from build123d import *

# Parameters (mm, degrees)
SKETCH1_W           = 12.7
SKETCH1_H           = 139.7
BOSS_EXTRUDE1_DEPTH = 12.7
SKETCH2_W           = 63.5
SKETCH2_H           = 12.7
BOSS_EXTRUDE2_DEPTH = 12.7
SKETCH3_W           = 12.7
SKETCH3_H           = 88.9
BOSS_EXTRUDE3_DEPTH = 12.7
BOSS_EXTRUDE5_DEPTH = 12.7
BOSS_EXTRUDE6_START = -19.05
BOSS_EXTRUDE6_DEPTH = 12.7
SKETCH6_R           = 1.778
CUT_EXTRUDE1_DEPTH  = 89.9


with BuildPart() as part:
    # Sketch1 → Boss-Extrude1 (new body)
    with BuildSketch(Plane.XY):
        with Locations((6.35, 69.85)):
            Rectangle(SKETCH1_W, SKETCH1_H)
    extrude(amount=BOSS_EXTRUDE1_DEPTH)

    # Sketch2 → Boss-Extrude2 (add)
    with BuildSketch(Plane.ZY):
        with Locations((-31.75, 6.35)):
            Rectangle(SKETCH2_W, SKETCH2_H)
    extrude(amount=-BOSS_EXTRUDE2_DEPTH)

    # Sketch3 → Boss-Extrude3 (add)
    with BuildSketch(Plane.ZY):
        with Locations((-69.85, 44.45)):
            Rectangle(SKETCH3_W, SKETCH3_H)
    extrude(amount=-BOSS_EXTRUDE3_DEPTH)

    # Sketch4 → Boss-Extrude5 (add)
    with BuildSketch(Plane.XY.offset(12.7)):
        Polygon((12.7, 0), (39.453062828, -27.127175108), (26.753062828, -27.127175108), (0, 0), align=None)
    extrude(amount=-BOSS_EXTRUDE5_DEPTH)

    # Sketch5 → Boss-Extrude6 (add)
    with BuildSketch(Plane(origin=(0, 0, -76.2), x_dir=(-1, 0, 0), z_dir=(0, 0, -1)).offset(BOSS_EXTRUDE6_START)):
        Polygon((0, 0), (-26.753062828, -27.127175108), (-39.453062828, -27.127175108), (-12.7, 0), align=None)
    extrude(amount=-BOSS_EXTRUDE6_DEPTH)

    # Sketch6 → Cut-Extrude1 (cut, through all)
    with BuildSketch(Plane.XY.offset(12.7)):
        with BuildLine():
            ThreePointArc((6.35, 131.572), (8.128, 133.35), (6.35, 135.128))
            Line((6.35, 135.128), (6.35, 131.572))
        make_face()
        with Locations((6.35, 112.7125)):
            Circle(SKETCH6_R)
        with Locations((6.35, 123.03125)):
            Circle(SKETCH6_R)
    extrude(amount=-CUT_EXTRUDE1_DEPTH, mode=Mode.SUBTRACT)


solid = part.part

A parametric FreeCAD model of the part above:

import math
import FreeCAD as App
import Part
import Sketcher
from FreeCAD import Vector
Q = App.Units.Quantity

doc = App.newDocument("Part")
body = doc.addObject("PartDesign::Body", "Body")

# Sketch on XY plane
sketch1 = body.newObject("Sketcher::SketchObject", "Sketch")
sketch1.AttachmentSupport = (doc.getObject("XY_Plane"), [""])
sketch1.MapMode = "FlatFace"
sketch1.addGeometry([
    Part.LineSegment(Vector(0, 139.7, 0), Vector(0, 0, 0)),
    Part.LineSegment(Vector(0, 0, 0), Vector(12.7, 0, 0)),
    Part.LineSegment(Vector(12.7, 0, 0), Vector(12.7, 139.7, 0)),
    Part.LineSegment(Vector(12.7, 139.7, 0), Vector(0, 139.7, 0)),
], False)
sketch1.addConstraint([
    Sketcher.Constraint("Coincident", 0, 2, 1, 1),
    Sketcher.Constraint("Coincident", 1, 2, 2, 1),
    Sketcher.Constraint("Coincident", 2, 2, 3, 1),
    Sketcher.Constraint("Coincident", 3, 2, 0, 1),
    Sketcher.Constraint("Vertical", 0),
    Sketcher.Constraint("Horizontal", 1),
    Sketcher.Constraint("Vertical", 2),
    Sketcher.Constraint("Horizontal", 3),
    Sketcher.Constraint("Coincident", 0, 2, -1, 1),
    Sketcher.Constraint("DistanceX", 1, 1, 1, 2, Q("0.5 in")),
    Sketcher.Constraint("DistanceY", 0, 2, 0, 1, Q("5.5 in")),
])
pad1 = body.newObject("PartDesign::Pad", "Pad")
pad1.Profile = sketch1
pad1.Length = Q("0.5 in")

# Sketch on YZ plane
sketch2 = body.newObject("Sketcher::SketchObject", "Sketch001")
sketch2.AttachmentSupport = (doc.getObject("YZ_Plane"), [""])
sketch2.MapMode = "FlatFace"
sketch2.addGeometry([
    Part.LineSegment(Vector(12.7, -63.5, 0), Vector(0, -63.5, 0)),
    Part.LineSegment(Vector(0, -63.5, 0), Vector(0, 0, 0)),
    Part.LineSegment(Vector(0, 0, 0), Vector(12.7, 0, 0)),
    Part.LineSegment(Vector(12.7, 0, 0), Vector(12.7, -63.5, 0)),
], False)
sketch2.addConstraint([
    Sketcher.Constraint("Coincident", 0, 2, 1, 1),
    Sketcher.Constraint("Coincident", 1, 2, 2, 1),
    Sketcher.Constraint("Coincident", 2, 2, 3, 1),
    Sketcher.Constraint("Coincident", 3, 2, 0, 1),
    Sketcher.Constraint("Horizontal", 0),
    Sketcher.Constraint("Vertical", 1),
    Sketcher.Constraint("Horizontal", 2),
    Sketcher.Constraint("Vertical", 3),
    Sketcher.Constraint("Coincident", 1, 2, -1, 1),
    Sketcher.Constraint("DistanceX", 0, 2, 0, 1, Q("0.5 in")),
    Sketcher.Constraint("DistanceY", 1, 1, 1, 2, Q("2.5 in")),
])
pad2 = body.newObject("PartDesign::Pad", "Pad001")
pad2.Profile = sketch2
pad2.Length = Q("0.5 in")

# Sketch on YZ plane
sketch3 = body.newObject("Sketcher::SketchObject", "Sketch002")
sketch3.AttachmentSupport = (doc.getObject("YZ_Plane"), [""])
sketch3.MapMode = "FlatFace"
sketch3.addGeometry([
    Part.LineSegment(Vector(88.9, -76.2, 0), Vector(0, -76.2, 0)),
    Part.LineSegment(Vector(0, -76.2, 0), Vector(0, -63.5, 0)),
    Part.LineSegment(Vector(0, -63.5, 0), Vector(88.9, -63.5, 0)),
    Part.LineSegment(Vector(88.9, -63.5, 0), Vector(88.9, -76.2, 0)),
], False)
sketch3.addConstraint([
    Sketcher.Constraint("Coincident", 0, 2, 1, 1),
    Sketcher.Constraint("Coincident", 1, 2, 2, 1),
    Sketcher.Constraint("Coincident", 2, 2, 3, 1),
    Sketcher.Constraint("Coincident", 3, 2, 0, 1),
    Sketcher.Constraint("Horizontal", 0),
    Sketcher.Constraint("Vertical", 1),
    Sketcher.Constraint("Horizontal", 2),
    Sketcher.Constraint("Vertical", 3),
    Sketcher.Constraint("PointOnObject", 0, 2, -2),
    Sketcher.Constraint("DistanceX", 0, 2, 0, 1, Q("3.5 in")),
    Sketcher.Constraint("DistanceY", 1, 1, 1, 2, Q("0.5 in")),
    Sketcher.Constraint("DistanceY", 0, 2, -1, 1, Q("3 in")),
])
pad3 = body.newObject("PartDesign::Pad", "Pad002")
pad3.Profile = sketch3
pad3.Length = Q("0.5 in")

# Sketch on XY plane
sketch4 = body.newObject("Sketcher::SketchObject", "Sketch003")
sketch4.AttachmentSupport = (doc.getObject("XY_Plane"), [""])
sketch4.MapMode = "FlatFace"
sketch4.AttachmentOffset = App.Placement(Vector(0, 0, 0.5 * 25.4), App.Rotation())
sketch4.addGeometry([
    Part.LineSegment(Vector(39.453063, -27.127175, 0), Vector(12.7, 0, 0)),
    Part.LineSegment(Vector(12.7, 0, 0), Vector(0, 0, 0)),
    Part.LineSegment(Vector(0, 0, 0), Vector(26.753063, -27.127175, 0)),
    Part.LineSegment(Vector(26.753063, -27.127175, 0), Vector(39.453063, -27.127175, 0)),
], False)
sketch4.addConstraint([
    Sketcher.Constraint("Coincident", 0, 2, 1, 1),
    Sketcher.Constraint("Coincident", 1, 2, 2, 1),
    Sketcher.Constraint("Coincident", 2, 2, 3, 1),
    Sketcher.Constraint("Coincident", 3, 2, 0, 1),
    Sketcher.Constraint("Horizontal", 1),
    Sketcher.Constraint("Horizontal", 3),
    Sketcher.Constraint("Coincident", 1, 2, -1, 1),
    Sketcher.Constraint("Parallel", 0, 2),
    Sketcher.Constraint("DistanceX", 1, 2, 1, 1, Q("0.5 in")),
    Sketcher.Constraint("Distance", 0, Q("1.5 in")),
    Sketcher.Constraint("DistanceX", -1, 1, 2, 2, 26.753063),
])
pad4 = body.newObject("PartDesign::Pad", "Pad003")
pad4.Profile = sketch4
pad4.Length = Q("0.5 in")
pad4.Reversed = True

# Sketch on XY plane
sketch5 = body.newObject("Sketcher::SketchObject", "Sketch004")
sketch5.AttachmentSupport = (doc.getObject("XY_Plane"), [""])
sketch5.MapMode = "FlatFace"
sketch5.AttachmentOffset = App.Placement(Vector(0, 0, -2.25 * 25.4), App.Rotation())
sketch5.addGeometry([
    Part.LineSegment(Vector(26.753063, -27.127175, 0), Vector(0, 0, 0)),
    Part.LineSegment(Vector(0, 0, 0), Vector(12.7, 0, 0)),
    Part.LineSegment(Vector(12.7, 0, 0), Vector(39.453063, -27.127175, 0)),
    Part.LineSegment(Vector(39.453063, -27.127175, 0), Vector(26.753063, -27.127175, 0)),
], False)
sketch5.addConstraint([
    Sketcher.Constraint("Coincident", 0, 2, 1, 1),
    Sketcher.Constraint("Coincident", 1, 2, 2, 1),
    Sketcher.Constraint("Coincident", 2, 2, 3, 1),
    Sketcher.Constraint("Coincident", 3, 2, 0, 1),
    Sketcher.Constraint("Horizontal", 1),
    Sketcher.Constraint("Horizontal", 3),
    Sketcher.Constraint("Coincident", 0, 2, -1, 1),
    Sketcher.Constraint("Parallel", 0, 2),
    Sketcher.Constraint("DistanceX", 1, 1, 1, 2, Q("0.5 in")),
    Sketcher.Constraint("Distance", 0, Q("1.5 in")),
    Sketcher.Constraint("DistanceX", -1, 1, 2, 2, 39.453063),
])
pad5 = body.newObject("PartDesign::Pad", "Pad004")
pad5.Profile = sketch5
pad5.Length = Q("0.5 in")

# Sketch on XY plane
sketch6 = body.newObject("Sketcher::SketchObject", "Sketch005")
sketch6.AttachmentSupport = (doc.getObject("XY_Plane"), [""])
sketch6.MapMode = "FlatFace"
sketch6.AttachmentOffset = App.Placement(Vector(0, 0, 0.5 * 25.4), App.Rotation())
sketch6.addGeometry([
    Part.ArcOfCircle(Part.Circle(Vector(6.35, 133.35, 0), Vector(0, 0, 1), 1.778), math.radians(-90), math.radians(90)),
    Part.LineSegment(Vector(6.35, 135.128, 0), Vector(6.35, 131.572, 0)),
    Part.Circle(Vector(6.35, 112.7125, 0), Vector(0, 0, 1), 1.778),
    Part.Circle(Vector(6.35, 123.03125, 0), Vector(0, 0, 1), 1.778),
], False)
sketch6.addConstraint([
    Sketcher.Constraint("Coincident", 0, 1, 1, 2),
    Sketcher.Constraint("Coincident", 1, 1, 0, 2),
    Sketcher.Constraint("Vertical", 1),
    Sketcher.Constraint("Equal", 0, 2),
    Sketcher.Constraint("Equal", 2, 3),
    Sketcher.Constraint("Vertical", 0, 3, 2, 3),
    Sketcher.Constraint("Vertical", 2, 3, 3, 3),
    Sketcher.Constraint("Vertical", 3, 3, 0, 1),
    Sketcher.Constraint("Diameter", 2, Q("0.14 in")),
    Sketcher.Constraint("DistanceX", -1, 1, 0, 3, Q("0.25 in")),
    Sketcher.Constraint("DistanceY", -1, 1, 0, 3, Q("5.25 in")),
    Sketcher.Constraint("DistanceY", -1, 1, 2, 3, Q("4.4375 in")),
    Sketcher.Constraint("DistanceY", -1, 1, 3, 3, Q("4.84375 in")),
])
pocket1 = body.newObject("PartDesign::Pocket", "Pocket")
pocket1.Profile = sketch6
pocket1.Type = "ThroughAll"

doc.recompute()
